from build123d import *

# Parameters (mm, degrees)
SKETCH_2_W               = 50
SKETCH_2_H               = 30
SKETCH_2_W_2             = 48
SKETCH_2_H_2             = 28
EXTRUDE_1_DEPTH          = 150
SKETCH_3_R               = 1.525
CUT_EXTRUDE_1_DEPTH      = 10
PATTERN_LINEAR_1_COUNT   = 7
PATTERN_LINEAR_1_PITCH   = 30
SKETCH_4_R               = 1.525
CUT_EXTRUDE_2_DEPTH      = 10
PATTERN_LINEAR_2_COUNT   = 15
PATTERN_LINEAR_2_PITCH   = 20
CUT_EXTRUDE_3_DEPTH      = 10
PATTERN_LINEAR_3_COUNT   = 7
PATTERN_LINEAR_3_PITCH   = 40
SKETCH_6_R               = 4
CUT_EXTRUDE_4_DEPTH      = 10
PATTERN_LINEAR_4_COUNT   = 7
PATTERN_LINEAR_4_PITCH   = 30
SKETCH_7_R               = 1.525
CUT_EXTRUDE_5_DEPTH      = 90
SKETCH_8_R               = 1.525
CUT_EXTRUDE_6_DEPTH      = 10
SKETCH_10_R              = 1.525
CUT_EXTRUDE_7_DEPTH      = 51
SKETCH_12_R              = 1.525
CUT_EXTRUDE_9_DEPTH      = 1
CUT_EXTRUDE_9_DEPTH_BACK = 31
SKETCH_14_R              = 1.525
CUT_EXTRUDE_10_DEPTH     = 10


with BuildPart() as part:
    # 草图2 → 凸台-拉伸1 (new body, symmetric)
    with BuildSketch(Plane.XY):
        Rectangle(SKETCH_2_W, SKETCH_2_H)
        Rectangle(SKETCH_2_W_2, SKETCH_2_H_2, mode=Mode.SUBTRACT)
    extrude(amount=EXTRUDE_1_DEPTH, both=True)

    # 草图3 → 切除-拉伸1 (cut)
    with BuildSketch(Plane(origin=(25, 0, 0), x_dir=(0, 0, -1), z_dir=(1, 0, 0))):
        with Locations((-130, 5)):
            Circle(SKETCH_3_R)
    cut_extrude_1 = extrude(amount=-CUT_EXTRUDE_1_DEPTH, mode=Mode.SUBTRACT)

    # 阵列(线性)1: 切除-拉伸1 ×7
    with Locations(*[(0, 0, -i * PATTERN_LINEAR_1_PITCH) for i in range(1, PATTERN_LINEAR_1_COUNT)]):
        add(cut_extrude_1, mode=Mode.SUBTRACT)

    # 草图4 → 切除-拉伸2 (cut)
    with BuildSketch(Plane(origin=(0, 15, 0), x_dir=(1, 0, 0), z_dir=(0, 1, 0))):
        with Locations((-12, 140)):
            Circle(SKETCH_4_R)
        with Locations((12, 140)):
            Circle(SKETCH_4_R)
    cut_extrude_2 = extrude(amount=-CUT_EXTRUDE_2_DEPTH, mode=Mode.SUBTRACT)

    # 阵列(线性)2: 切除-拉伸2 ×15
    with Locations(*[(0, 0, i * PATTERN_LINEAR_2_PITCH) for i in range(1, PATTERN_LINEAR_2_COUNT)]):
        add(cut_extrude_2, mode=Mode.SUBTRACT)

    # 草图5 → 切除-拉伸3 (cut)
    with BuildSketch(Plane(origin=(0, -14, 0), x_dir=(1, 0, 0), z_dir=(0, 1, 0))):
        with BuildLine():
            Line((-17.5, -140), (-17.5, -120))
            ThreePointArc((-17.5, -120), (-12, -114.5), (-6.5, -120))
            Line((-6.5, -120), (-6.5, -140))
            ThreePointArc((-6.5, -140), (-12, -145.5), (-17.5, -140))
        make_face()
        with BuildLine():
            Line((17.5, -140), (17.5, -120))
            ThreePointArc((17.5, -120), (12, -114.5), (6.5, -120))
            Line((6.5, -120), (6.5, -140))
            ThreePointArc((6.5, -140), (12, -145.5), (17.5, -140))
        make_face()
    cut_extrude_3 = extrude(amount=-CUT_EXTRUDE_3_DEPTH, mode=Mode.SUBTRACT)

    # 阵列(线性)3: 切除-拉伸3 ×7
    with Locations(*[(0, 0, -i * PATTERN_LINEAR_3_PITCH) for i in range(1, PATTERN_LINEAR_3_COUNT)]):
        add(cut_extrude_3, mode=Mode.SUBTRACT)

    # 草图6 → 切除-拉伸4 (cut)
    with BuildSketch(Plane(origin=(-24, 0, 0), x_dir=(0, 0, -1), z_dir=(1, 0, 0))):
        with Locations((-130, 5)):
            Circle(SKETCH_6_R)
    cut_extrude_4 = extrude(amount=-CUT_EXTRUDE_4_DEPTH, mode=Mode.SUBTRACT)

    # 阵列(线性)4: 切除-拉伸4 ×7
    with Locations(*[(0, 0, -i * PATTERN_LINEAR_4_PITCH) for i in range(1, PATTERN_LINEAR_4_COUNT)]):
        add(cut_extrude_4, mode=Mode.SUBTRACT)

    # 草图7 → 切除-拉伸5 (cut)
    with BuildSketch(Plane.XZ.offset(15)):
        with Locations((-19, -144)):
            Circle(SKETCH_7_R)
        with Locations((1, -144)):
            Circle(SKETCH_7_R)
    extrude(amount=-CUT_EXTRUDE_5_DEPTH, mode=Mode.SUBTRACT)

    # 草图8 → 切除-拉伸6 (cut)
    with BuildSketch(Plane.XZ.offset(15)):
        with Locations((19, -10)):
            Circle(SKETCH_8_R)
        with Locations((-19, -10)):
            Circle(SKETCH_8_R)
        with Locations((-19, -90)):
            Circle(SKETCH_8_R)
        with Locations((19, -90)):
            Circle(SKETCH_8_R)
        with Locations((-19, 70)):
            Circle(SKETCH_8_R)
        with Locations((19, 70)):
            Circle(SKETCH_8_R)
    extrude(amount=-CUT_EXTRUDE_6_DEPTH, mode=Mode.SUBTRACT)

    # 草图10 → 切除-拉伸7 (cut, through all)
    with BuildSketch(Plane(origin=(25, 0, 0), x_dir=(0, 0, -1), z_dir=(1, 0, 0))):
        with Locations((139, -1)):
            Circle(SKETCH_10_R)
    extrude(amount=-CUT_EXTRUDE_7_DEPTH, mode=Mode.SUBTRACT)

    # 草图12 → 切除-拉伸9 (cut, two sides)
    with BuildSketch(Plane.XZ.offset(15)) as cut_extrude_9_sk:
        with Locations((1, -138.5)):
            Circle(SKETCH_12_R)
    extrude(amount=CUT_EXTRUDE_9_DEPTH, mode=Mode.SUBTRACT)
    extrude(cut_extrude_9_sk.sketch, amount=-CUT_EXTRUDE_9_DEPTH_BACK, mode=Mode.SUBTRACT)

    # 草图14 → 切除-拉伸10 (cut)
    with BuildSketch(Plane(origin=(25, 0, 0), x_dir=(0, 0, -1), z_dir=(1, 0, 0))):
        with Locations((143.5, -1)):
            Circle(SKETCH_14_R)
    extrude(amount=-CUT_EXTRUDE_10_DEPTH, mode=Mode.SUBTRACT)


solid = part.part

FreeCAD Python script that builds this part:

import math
import FreeCAD as App
import Part
import Sketcher

V = App.Vector
Q = App.Units.Quantity

doc = App.newDocument("Part")
params = doc.addObject("Spreadsheet::Sheet", "Params")
for row, (alias, value) in enumerate([
    ("sketch1_width", "50 mm"),
    ("sketch1_width2", "48 mm"),
    ("sketch1_height", "30 mm"),
    ("sketch1_height2", "28 mm"),
    ("pad1_length", "300 mm"),
    ("sketch2_diameter", "3.05 mm"),
    ("pocket1_length", "10 mm"),
    ("linearpattern_pitch", "30 mm"),
    ("sketch3_diameter", "3.05 mm"),
    ("pocket2_length", "10 mm"),
    ("linearpattern2_pitch", "20 mm"),
    ("sketch4_radius", "5.5 mm"),
    ("sketch4_height", "20 mm"),
    ("pocket3_length", "10 mm"),
    ("linearpattern3_pitch", "40 mm"),
    ("sketch5_diameter", "8 mm"),
    ("pocket4_length", "10 mm"),
    ("linearpattern4_pitch", "30 mm"),
    ("sketch6_diameter", "3.05 mm"),
    ("pocket5_length", "90 mm"),
    ("sketch7_diameter", "3.05 mm"),
    ("pocket6_length", "10 mm"),
    ("sketch8_diameter", "3.05 mm"),
    ("sketch9_diameter", "3.05 mm"),
    ("sketch10_diameter", "3.05 mm"),
    ("pocket9_length", "10 mm"),
], start=1):
    params.set(f"A{row}", alias)
    params.set(f"B{row}", "=" + value)
    params.setAlias(f"B{row}", alias)

body = doc.addObject("PartDesign::Body", "Body")

# Sketch on XY plane
sketch1 = doc.addObject("Sketcher::SketchObject", "Sketch")
body.addObject(sketch1)
sketch1.AttachmentSupport = (doc.XY_Plane, [""])
sketch1.MapMode = "FlatFace"
sketch1.addGeometry(Part.LineSegment(V(-25, 15, 0), V(-25, -15, 0)), False)
sketch1.addGeometry(Part.LineSegment(V(-25, -15, 0), V(25, -15, 0)), False)
sketch1.addGeometry(Part.LineSegment(V(25, -15, 0), V(25, 15, 0)), False)
sketch1.addGeometry(Part.LineSegment(V(25, 15, 0), V(-25, 15, 0)), False)
sketch1.addGeometry(Part.LineSegment(V(24, -14, 0), V(-24, -14, 0)), False)
sketch1.addGeometry(Part.LineSegment(V(-24, -14, 0), V(-24, 14, 0)), False)
sketch1.addGeometry(Part.LineSegment(V(-24, 14, 0), V(24, 14, 0)), False)
sketch1.addGeometry(Part.LineSegment(V(24, 14, 0), V(24, -14, 0)), False)
sketch1.addConstraint(Sketcher.Constraint("Coincident", 0, 2, 1, 1))
sketch1.addConstraint(Sketcher.Constraint("Coincident", 1, 2, 2, 1))
sketch1.addConstraint(Sketcher.Constraint("Coincident", 2, 2, 3, 1))
sketch1.addConstraint(Sketcher.Constraint("Coincident", 3, 2, 0, 1))
sketch1.addConstraint(Sketcher.Constraint("Coincident", 4, 2, 5, 1))
sketch1.addConstraint(Sketcher.Constraint("Coincident", 5, 2, 6, 1))
sketch1.addConstraint(Sketcher.Constraint("Coincident", 6, 2, 7, 1))
sketch1.addConstraint(Sketcher.Constraint("Coincident", 7, 2, 4, 1))
sketch1.addConstraint(Sketcher.Constraint("Vertical", 0))
sketch1.addConstraint(Sketcher.Constraint("Horizontal", 1))
sketch1.addConstraint(Sketcher.Constraint("Vertical", 2))
sketch1.addConstraint(Sketcher.Constraint("Horizontal", 3))
sketch1.addConstraint(Sketcher.Constraint("Horizontal", 4))
sketch1.addConstraint(Sketcher.Constraint("Vertical", 5))
sketch1.addConstraint(Sketcher.Constraint("Horizontal", 6))
sketch1.addConstraint(Sketcher.Constraint("Vertical", 7))
sketch1.addConstraint(Sketcher.Constraint("Symmetric", 0, 2, 2, 2, -1, 1))
sketch1.addConstraint(Sketcher.Constraint("Symmetric", 4, 2, 6, 2, -1, 1))
sketch1.addConstraint(Sketcher.Constraint("DistanceX", 1, 1, 1, 2, Q("50 mm")))
sketch1.addConstraint(Sketcher.Constraint("DistanceX", 4, 2, 4, 1, Q("48 mm")))
sketch1.addConstraint(Sketcher.Constraint("DistanceY", 0, 2, 0, 1, Q("30 mm")))
sketch1.addConstraint(Sketcher.Constraint("DistanceY", 5, 1, 5, 2, Q("28 mm")))
sketch1.setExpression("Constraints[18]", "Params.sketch1_width")
sketch1.setExpression("Constraints[19]", "Params.sketch1_width2")
sketch1.setExpression("Constraints[20]", "Params.sketch1_height")
sketch1.setExpression("Constraints[21]", "Params.sketch1_height2")
pad1 = doc.addObject("PartDesign::Pad", "Pad")
body.addObject(pad1)
pad1.Profile = sketch1
pad1.setExpression("Length", "Params.pad1_length")
pad1.Midplane = True

# Sketch on YZ plane
sketch2 = doc.addObject("Sketcher::SketchObject", "Sketch001")
body.addObject(sketch2)
sketch2.AttachmentSupport = (doc.YZ_Plane, [""])
sketch2.MapMode = "FlatFace"
sketch2.AttachmentOffset = App.Placement(V(0, 0, 25), App.Rotation())
sketch2.addGeometry(Part.Circle(V(5, 130, 0), V(0, 0, 1), 1.5), False)
sketch2.addConstraint(Sketcher.Constraint("Diameter", 0, Q("3.05 mm")))
sketch2.addConstraint(Sketcher.Constraint("DistanceX", -1, 1, 0, 3, Q("5 mm")))
sketch2.addConstraint(Sketcher.Constraint("DistanceY", -1, 1, 0, 3, Q("130 mm")))
sketch2.setExpression("Constraints[0]", "Params.sketch2_diameter")
pocket1 = doc.addObject("PartDesign::Pocket", "Pocket")
body.addObject(pocket1)
pocket1.Profile = sketch2
pocket1.setExpression("Length", "Params.pocket1_length")
doc.recompute()

linearpattern = doc.addObject("PartDesign::LinearPattern", "LinearPattern")
body.addObject(linearpattern)
linearpattern.Originals = [pocket1]
linearpattern.Direction = (doc.Z_Axis, [""])
linearpattern.Mode = "offset"
linearpattern.setExpression("Offset", "Params.linearpattern_pitch")
linearpattern.Occurrences = 7
linearpattern.Reversed = True
body.Tip = linearpattern

# Sketch on XZ plane
sketch3 = doc.addObject("Sketcher::SketchObject", "Sketch002")
body.addObject(sketch3)
sketch3.AttachmentSupport = (doc.XZ_Plane, [""])
sketch3.MapMode = "FlatFace"
sketch3.AttachmentOffset = App.Placement(V(0, 0, -15), App.Rotation())
sketch3.addGeometry(Part.Circle(V(-12, -140, 0), V(0, 0, 1), 1.5), False)
sketch3.addGeometry(Part.Circle(V(12, -140, 0), V(0, 0, 1), 1.5), False)
sketch3.addConstraint(Sketcher.Constraint("Equal", 0, 1))
sketch3.addConstraint(Sketcher.Constraint("Symmetric", 0, 3, 1, 3, -2))
sketch3.addConstraint(Sketcher.Constraint("Diameter", 0, Q("3.05 mm")))
sketch3.addConstraint(Sketcher.Constraint("DistanceX", 0, 3, -1, 1, Q("12 mm")))
sketch3.addConstraint(Sketcher.Constraint("DistanceY", 0, 3, -1, 1, Q("140 mm")))
sketch3.setExpression("Constraints[2]", "Params.sketch3_diameter")
pocket2 = doc.addObject("PartDesign::Pocket", "Pocket001")
body.addObject(pocket2)
pocket2.Profile = sketch3
pocket2.setExpression("Length", "Params.pocket2_length")
pocket2.Reversed = True
doc.recompute()

linearpattern2 = doc.addObject("PartDesign::LinearPattern", "LinearPattern001")
body.addObject(linearpattern2)
linearpattern2.Originals = [pocket2]
linearpattern2.Direction = (doc.Z_Axis, [""])
linearpattern2.Mode = "offset"
linearpattern2.setExpression("Offset", "Params.linearpattern2_pitch")
linearpattern2.Occurrences = 15
body.Tip = linearpattern2

# Sketch on XZ plane
sketch4 = doc.addObject("Sketcher::SketchObject", "Sketch003")
body.addObject(sketch4)
sketch4.AttachmentSupport = (doc.XZ_Plane, [""])
sketch4.MapMode = "FlatFace"
sketch4.AttachmentOffset = App.Placement(V(0, 0, 14), App.Rotation())
sketch4.addGeometry(Part.LineSegment(V(-18, 120, 0), V(-18, 140, 0)), False)
sketch4.addGeometry(Part.ArcOfCircle(Part.Circle(V(-12, 140, 0), V(0, 0, 1), 6), math.radians(0), math.radians(180)), False)
sketch4.addGeometry(Part.LineSegment(V(-6, 140, 0), V(-6, 120, 0)), False)
sketch4.addGeometry(Part.ArcOfCircle(Part.Circle(V(-12, 120, 0), V(0, 0, 1), 6), math.radians(180), math.radians(360)), False)
sketch4.addGeometry(Part.LineSegment(V(18, 140, 0), V(18, 120, 0)), False)
sketch4.addGeometry(Part.ArcOfCircle(Part.Circle(V(12, 120, 0), V(0, 0, 1), 6), math.radians(180), math.radians(360)), False)
sketch4.addGeometry(Part.LineSegment(V(6, 120, 0), V(6, 140, 0)), False)
sketch4.addGeometry(Part.ArcOfCircle(Part.Circle(V(12, 140, 0), V(0, 0, 1), 6), math.radians(0), math.radians(180)), False)
sketch4.addConstraint(Sketcher.Constraint("Tangent", 0, 2, 1, 2))
sketch4.addConstraint(Sketcher.Constraint("Tangent", 1, 1, 2, 1))
sketch4.addConstraint(Sketcher.Constraint("Tangent", 2, 2, 3, 2))
sketch4.addConstraint(Sketcher.Constraint("Tangent", 3, 1, 0, 1))
sketch4.addConstraint(Sketcher.Constraint("Tangent", 4, 2, 5, 2))
sketch4.addConstraint(Sketcher.Constraint("Tangent", 5, 1, 6, 1))
sketch4.addConstraint(Sketcher.Constraint("Tangent", 6, 2, 7, 2))
sketch4.addConstraint(Sketcher.Constraint("Tangent", 7, 1, 4, 1))
sketch4.addConstraint(Sketcher.Constraint("Vertical", 0))
sketch4.addConstraint(Sketcher.Constraint("Vertical", 2))
sketch4.addConstraint(Sketcher.Constraint("Vertical", 4))
sketch4.addConstraint(Sketcher.Constraint("Vertical", 6))
sketch4.addConstraint(Sketcher.Constraint("Equal", 3, 5))
sketch4.addConstraint(Sketcher.Constraint("Symmetric", 3, 3, 5, 3, -2))
sketch4.addConstraint(Sketcher.Constraint("Horizontal", 1, 3, 7, 3))
sketch4.addConstraint(Sketcher.Constraint("Radius", 1, Q("5.5 mm")))
sketch4.addConstraint(Sketcher.Constraint("DistanceY", 0, 1, 0, 2, Q("20 mm")))
sketch4.addConstraint(Sketcher.Constraint("DistanceX", 1, 3, -1, 1, Q("12 mm")))
sketch4.addConstraint(Sketcher.Constraint("DistanceY", -1, 1, 1, 3, Q("140 mm")))
sketch4.setExpression("Constraints[15]", "Params.sketch4_radius")
sketch4.setExpression("Constraints[16]", "Params.sketch4_height")
pocket3 = doc.addObject("PartDesign::Pocket", "Pocket002")
body.addObject(pocket3)
pocket3.Profile = sketch4
pocket3.setExpression("Length", "Params.pocket3_length")
pocket3.Reversed = True
doc.recompute()

linearpattern3 = doc.addObject("PartDesign::LinearPattern", "LinearPattern002")
body.addObject(linearpattern3)
linearpattern3.Originals = [pocket3]
linearpattern3.Direction = (doc.Z_Axis, [""])
linearpattern3.Mode = "offset"
linearpattern3.setExpression("Offset", "Params.linearpattern3_pitch")
linearpattern3.Occurrences = 7
linearpattern3.Reversed = True
body.Tip = linearpattern3

# Sketch on YZ plane
sketch5 = doc.addObject("Sketcher::SketchObject", "Sketch004")
body.addObject(sketch5)
sketch5.AttachmentSupport = (doc.YZ_Plane, [""])
sketch5.MapMode = "FlatFace"
sketch5.AttachmentOffset = App.Placement(V(0, 0, -24), App.Rotation())
sketch5.addGeometry(Part.Circle(V(5, 130, 0), V(0, 0, 1), 4), False)
sketch5.addConstraint(Sketcher.Constraint("Diameter", 0, Q("8 mm")))
sketch5.addConstraint(Sketcher.Constraint("DistanceX", -1, 1, 0, 3, Q("5 mm")))
sketch5.addConstraint(Sketcher.Constraint("DistanceY", -1, 1, 0, 3, Q("130 mm")))
sketch5.setExpression("Constraints[0]", "Params.sketch5_diameter")
pocket4 = doc.addObject("PartDesign::Pocket", "Pocket003")
body.addObject(pocket4)
pocket4.Profile = sketch5
pocket4.setExpression("Length", "Params.pocket4_length")
doc.recompute()

linearpattern4 = doc.addObject("PartDesign::LinearPattern", "LinearPattern003")
body.addObject(linearpattern4)
linearpattern4.Originals = [pocket4]
linearpattern4.Direction = (doc.Z_Axis, [""])
linearpattern4.Mode = "offset"
linearpattern4.setExpression("Offset", "Params.linearpattern4_pitch")
linearpattern4.Occurrences = 7
linearpattern4.Reversed = True
body.Tip = linearpattern4

# Sketch on XZ plane
sketch6 = doc.addObject("Sketcher::SketchObject", "Sketch005")
body.addObject(sketch6)
sketch6.AttachmentSupport = (doc.XZ_Plane, [""])
sketch6.MapMode = "FlatFace"
sketch6.AttachmentOffset = App.Placement(V(0, 0, 15), App.Rotation())
sketch6.addGeometry(Part.Circle(V(-19, -144, 0), V(0, 0, 1), 1.5), False)
sketch6.addGeometry(Part.Circle(V(1, -144, 0), V(0, 0, 1), 1.5), False)
sketch6.addConstraint(Sketcher.Constraint("Equal", 0, 1))
sketch6.addConstraint(Sketcher.Constraint("Horizontal", 0, 3, 1, 3))
sketch6.addConstraint(Sketcher.Constraint("Diameter", 0, Q("3.05 mm")))
sketch6.addConstraint(Sketcher.Constraint("DistanceX", 0, 3, -1, 1, Q("19 mm")))
sketch6.addConstraint(Sketcher.Constraint("DistanceY", 0, 3, -1, 1, Q("144 mm")))
sketch6.addConstraint(Sketcher.Constraint("DistanceX", -1, 1, 1, 3, Q("1 mm")))
sketch6.setExpression("Constraints[2]", "Params.sketch6_diameter")
pocket5 = doc.addObject("PartDesign::Pocket", "Pocket004")
body.addObject(pocket5)
pocket5.Profile = sketch6
pocket5.setExpression("Length", "Params.pocket5_length")

# Sketch on XZ plane
sketch7 = doc.addObject("Sketcher::SketchObject", "Sketch006")
body.addObject(sketch7)
sketch7.AttachmentSupport = (doc.XZ_Plane, [""])
sketch7.MapMode = "FlatFace"
sketch7.AttachmentOffset = App.Placement(V(0, 0, 15), App.Rotation())
sketch7.addGeometry(Part.Circle(V(19, -10, 0), V(0, 0, 1), 1.5), False)
sketch7.addGeometry(Part.Circle(V(-19, -10, 0), V(0, 0, 1), 1.5), False)
sketch7.addGeometry(Part.Circle(V(-19, -90, 0), V(0, 0, 1), 1.5), False)
sketch7.addGeometry(Part.Circle(V(19, -90, 0), V(0, 0, 1), 1.5), False)
sketch7.addGeometry(Part.Circle(V(-19, 70, 0), V(0, 0, 1), 1.5), False)
sketch7.addGeometry(Part.Circle(V(19, 70, 0), V(0, 0, 1), 1.5), False)
sketch7.addConstraint(Sketcher.Constraint("Equal", 0, 1))
sketch7.addConstraint(Sketcher.Constraint("Equal", 1, 2))
sketch7.addConstraint(Sketcher.Constraint("Equal", 2, 3))
sketch7.addConstraint(Sketcher.Constraint("Equal", 3, 4))
sketch7.addConstraint(Sketcher.Constraint("Equal", 4, 5))
sketch7.addConstraint(Sketcher.Constraint("Symmetric", 0, 3, 1, 3, -2))
sketch7.addConstraint(Sketcher.Constraint("Symmetric", 2, 3, 3, 3, -2))
sketch7.addConstraint(Sketcher.Constraint("Symmetric", 4, 3, 5, 3, -2))
sketch7.addConstraint(Sketcher.Constraint("Vertical", 1, 3, 2, 3))
sketch7.addConstraint(Sketcher.Constraint("Vertical", 2, 3, 4, 3))
sketch7.addConstraint(Sketcher.Constraint("Diameter", 0, Q("3.05 mm")))
sketch7.addConstraint(Sketcher.Constraint("DistanceX", -1, 1, 0, 3, Q("19 mm")))
sketch7.addConstraint(Sketcher.Constraint("DistanceY", 0, 3, -1, 1, Q("10 mm")))
sketch7.addConstraint(Sketcher.Constraint("DistanceY", 2, 3, -1, 1, Q("90 mm")))
sketch7.addConstraint(Sketcher.Constraint("DistanceY", -1, 1, 4, 3, Q("70 mm")))
sketch7.setExpression("Constraints[10]", "Params.sketch7_diameter")
pocket6 = doc.addObject("PartDesign::Pocket", "Pocket005")
body.addObject(pocket6)
pocket6.Profile = sketch7
pocket6.setExpression("Length", "Params.pocket6_length")

# Sketch on YZ plane
sketch8 = doc.addObject("Sketcher::SketchObject", "Sketch007")
body.addObject(sketch8)
sketch8.AttachmentSupport = (doc.YZ_Plane, [""])
sketch8.MapMode = "FlatFace"
sketch8.AttachmentOffset = App.Placement(V(0, 0, 25), App.Rotation())
sketch8.addGeometry(Part.Circle(V(-1, -139, 0), V(0, 0, 1), 1.5), False)
sketch8.addConstraint(Sketcher.Constraint("Diameter", 0, Q("3.05 mm")))
sketch8.addConstraint(Sketcher.Constraint("DistanceX", 0, 3, -1, 1, Q("1 mm")))
sketch8.addConstraint(Sketcher.Constraint("DistanceY", 0, 3, -1, 1, Q("139 mm")))
sketch8.setExpression("Constraints[0]", "Params.sketch8_diameter")
pocket7 = doc.addObject("PartDesign::Pocket", "Pocket006")
body.addObject(pocket7)
pocket7.Profile = sketch8
pocket7.Type = "ThroughAll"

# Sketch on XZ plane
sketch9 = doc.addObject("Sketcher::SketchObject", "Sketch008")
body.addObject(sketch9)
sketch9.AttachmentSupport = (doc.XZ_Plane, [""])
sketch9.MapMode = "FlatFace"
sketch9.AttachmentOffset = App.Placement(V(0, 0, 15), App.Rotation())
sketch9.addGeometry(Part.Circle(V(1, -138.5, 0), V(0, 0, 1), 1.5), False)
sketch9.addConstraint(Sketcher.Constraint("Diameter", 0, Q("3.05 mm")))
sketch9.addConstraint(Sketcher.Constraint("DistanceX", -1, 1, 0, 3, Q("1 mm")))
sketch9.addConstraint(Sketcher.Constraint("DistanceY", 0, 3, -1, 1, Q("138.5 mm")))
sketch9.setExpression("Constraints[0]", "Params.sketch9_diameter")
pocket8 = doc.addObject("PartDesign::Pocket", "Pocket007")
body.addObject(pocket8)
pocket8.Profile = sketch9
pocket8.Type = "ThroughAll"
pocket8.Midplane = True

# Sketch on YZ plane
sketch10 = doc.addObject("Sketcher::SketchObject", "Sketch009")
body.addObject(sketch10)
sketch10.AttachmentSupport = (doc.YZ_Plane, [""])
sketch10.MapMode = "FlatFace"
sketch10.AttachmentOffset = App.Placement(V(0, 0, 25), App.Rotation())
sketch10.addGeometry(Part.Circle(V(-1, -143.5, 0), V(0, 0, 1), 1.5), False)
sketch10.addConstraint(Sketcher.Constraint("Diameter", 0, Q("3.05 mm")))
sketch10.addConstraint(Sketcher.Constraint("DistanceX", 0, 3, -1, 1, Q("1 mm")))
sketch10.addConstraint(Sketcher.Constraint("DistanceY", 0, 3, -1, 1, Q("143.5 mm")))
sketch10.setExpression("Constraints[0]", "Params.sketch10_diameter")
pocket9 = doc.addObject("PartDesign::Pocket", "Pocket008")
body.addObject(pocket9)
pocket9.Profile = sketch10
pocket9.setExpression("Length", "Params.pocket9_length")

doc.recompute()
